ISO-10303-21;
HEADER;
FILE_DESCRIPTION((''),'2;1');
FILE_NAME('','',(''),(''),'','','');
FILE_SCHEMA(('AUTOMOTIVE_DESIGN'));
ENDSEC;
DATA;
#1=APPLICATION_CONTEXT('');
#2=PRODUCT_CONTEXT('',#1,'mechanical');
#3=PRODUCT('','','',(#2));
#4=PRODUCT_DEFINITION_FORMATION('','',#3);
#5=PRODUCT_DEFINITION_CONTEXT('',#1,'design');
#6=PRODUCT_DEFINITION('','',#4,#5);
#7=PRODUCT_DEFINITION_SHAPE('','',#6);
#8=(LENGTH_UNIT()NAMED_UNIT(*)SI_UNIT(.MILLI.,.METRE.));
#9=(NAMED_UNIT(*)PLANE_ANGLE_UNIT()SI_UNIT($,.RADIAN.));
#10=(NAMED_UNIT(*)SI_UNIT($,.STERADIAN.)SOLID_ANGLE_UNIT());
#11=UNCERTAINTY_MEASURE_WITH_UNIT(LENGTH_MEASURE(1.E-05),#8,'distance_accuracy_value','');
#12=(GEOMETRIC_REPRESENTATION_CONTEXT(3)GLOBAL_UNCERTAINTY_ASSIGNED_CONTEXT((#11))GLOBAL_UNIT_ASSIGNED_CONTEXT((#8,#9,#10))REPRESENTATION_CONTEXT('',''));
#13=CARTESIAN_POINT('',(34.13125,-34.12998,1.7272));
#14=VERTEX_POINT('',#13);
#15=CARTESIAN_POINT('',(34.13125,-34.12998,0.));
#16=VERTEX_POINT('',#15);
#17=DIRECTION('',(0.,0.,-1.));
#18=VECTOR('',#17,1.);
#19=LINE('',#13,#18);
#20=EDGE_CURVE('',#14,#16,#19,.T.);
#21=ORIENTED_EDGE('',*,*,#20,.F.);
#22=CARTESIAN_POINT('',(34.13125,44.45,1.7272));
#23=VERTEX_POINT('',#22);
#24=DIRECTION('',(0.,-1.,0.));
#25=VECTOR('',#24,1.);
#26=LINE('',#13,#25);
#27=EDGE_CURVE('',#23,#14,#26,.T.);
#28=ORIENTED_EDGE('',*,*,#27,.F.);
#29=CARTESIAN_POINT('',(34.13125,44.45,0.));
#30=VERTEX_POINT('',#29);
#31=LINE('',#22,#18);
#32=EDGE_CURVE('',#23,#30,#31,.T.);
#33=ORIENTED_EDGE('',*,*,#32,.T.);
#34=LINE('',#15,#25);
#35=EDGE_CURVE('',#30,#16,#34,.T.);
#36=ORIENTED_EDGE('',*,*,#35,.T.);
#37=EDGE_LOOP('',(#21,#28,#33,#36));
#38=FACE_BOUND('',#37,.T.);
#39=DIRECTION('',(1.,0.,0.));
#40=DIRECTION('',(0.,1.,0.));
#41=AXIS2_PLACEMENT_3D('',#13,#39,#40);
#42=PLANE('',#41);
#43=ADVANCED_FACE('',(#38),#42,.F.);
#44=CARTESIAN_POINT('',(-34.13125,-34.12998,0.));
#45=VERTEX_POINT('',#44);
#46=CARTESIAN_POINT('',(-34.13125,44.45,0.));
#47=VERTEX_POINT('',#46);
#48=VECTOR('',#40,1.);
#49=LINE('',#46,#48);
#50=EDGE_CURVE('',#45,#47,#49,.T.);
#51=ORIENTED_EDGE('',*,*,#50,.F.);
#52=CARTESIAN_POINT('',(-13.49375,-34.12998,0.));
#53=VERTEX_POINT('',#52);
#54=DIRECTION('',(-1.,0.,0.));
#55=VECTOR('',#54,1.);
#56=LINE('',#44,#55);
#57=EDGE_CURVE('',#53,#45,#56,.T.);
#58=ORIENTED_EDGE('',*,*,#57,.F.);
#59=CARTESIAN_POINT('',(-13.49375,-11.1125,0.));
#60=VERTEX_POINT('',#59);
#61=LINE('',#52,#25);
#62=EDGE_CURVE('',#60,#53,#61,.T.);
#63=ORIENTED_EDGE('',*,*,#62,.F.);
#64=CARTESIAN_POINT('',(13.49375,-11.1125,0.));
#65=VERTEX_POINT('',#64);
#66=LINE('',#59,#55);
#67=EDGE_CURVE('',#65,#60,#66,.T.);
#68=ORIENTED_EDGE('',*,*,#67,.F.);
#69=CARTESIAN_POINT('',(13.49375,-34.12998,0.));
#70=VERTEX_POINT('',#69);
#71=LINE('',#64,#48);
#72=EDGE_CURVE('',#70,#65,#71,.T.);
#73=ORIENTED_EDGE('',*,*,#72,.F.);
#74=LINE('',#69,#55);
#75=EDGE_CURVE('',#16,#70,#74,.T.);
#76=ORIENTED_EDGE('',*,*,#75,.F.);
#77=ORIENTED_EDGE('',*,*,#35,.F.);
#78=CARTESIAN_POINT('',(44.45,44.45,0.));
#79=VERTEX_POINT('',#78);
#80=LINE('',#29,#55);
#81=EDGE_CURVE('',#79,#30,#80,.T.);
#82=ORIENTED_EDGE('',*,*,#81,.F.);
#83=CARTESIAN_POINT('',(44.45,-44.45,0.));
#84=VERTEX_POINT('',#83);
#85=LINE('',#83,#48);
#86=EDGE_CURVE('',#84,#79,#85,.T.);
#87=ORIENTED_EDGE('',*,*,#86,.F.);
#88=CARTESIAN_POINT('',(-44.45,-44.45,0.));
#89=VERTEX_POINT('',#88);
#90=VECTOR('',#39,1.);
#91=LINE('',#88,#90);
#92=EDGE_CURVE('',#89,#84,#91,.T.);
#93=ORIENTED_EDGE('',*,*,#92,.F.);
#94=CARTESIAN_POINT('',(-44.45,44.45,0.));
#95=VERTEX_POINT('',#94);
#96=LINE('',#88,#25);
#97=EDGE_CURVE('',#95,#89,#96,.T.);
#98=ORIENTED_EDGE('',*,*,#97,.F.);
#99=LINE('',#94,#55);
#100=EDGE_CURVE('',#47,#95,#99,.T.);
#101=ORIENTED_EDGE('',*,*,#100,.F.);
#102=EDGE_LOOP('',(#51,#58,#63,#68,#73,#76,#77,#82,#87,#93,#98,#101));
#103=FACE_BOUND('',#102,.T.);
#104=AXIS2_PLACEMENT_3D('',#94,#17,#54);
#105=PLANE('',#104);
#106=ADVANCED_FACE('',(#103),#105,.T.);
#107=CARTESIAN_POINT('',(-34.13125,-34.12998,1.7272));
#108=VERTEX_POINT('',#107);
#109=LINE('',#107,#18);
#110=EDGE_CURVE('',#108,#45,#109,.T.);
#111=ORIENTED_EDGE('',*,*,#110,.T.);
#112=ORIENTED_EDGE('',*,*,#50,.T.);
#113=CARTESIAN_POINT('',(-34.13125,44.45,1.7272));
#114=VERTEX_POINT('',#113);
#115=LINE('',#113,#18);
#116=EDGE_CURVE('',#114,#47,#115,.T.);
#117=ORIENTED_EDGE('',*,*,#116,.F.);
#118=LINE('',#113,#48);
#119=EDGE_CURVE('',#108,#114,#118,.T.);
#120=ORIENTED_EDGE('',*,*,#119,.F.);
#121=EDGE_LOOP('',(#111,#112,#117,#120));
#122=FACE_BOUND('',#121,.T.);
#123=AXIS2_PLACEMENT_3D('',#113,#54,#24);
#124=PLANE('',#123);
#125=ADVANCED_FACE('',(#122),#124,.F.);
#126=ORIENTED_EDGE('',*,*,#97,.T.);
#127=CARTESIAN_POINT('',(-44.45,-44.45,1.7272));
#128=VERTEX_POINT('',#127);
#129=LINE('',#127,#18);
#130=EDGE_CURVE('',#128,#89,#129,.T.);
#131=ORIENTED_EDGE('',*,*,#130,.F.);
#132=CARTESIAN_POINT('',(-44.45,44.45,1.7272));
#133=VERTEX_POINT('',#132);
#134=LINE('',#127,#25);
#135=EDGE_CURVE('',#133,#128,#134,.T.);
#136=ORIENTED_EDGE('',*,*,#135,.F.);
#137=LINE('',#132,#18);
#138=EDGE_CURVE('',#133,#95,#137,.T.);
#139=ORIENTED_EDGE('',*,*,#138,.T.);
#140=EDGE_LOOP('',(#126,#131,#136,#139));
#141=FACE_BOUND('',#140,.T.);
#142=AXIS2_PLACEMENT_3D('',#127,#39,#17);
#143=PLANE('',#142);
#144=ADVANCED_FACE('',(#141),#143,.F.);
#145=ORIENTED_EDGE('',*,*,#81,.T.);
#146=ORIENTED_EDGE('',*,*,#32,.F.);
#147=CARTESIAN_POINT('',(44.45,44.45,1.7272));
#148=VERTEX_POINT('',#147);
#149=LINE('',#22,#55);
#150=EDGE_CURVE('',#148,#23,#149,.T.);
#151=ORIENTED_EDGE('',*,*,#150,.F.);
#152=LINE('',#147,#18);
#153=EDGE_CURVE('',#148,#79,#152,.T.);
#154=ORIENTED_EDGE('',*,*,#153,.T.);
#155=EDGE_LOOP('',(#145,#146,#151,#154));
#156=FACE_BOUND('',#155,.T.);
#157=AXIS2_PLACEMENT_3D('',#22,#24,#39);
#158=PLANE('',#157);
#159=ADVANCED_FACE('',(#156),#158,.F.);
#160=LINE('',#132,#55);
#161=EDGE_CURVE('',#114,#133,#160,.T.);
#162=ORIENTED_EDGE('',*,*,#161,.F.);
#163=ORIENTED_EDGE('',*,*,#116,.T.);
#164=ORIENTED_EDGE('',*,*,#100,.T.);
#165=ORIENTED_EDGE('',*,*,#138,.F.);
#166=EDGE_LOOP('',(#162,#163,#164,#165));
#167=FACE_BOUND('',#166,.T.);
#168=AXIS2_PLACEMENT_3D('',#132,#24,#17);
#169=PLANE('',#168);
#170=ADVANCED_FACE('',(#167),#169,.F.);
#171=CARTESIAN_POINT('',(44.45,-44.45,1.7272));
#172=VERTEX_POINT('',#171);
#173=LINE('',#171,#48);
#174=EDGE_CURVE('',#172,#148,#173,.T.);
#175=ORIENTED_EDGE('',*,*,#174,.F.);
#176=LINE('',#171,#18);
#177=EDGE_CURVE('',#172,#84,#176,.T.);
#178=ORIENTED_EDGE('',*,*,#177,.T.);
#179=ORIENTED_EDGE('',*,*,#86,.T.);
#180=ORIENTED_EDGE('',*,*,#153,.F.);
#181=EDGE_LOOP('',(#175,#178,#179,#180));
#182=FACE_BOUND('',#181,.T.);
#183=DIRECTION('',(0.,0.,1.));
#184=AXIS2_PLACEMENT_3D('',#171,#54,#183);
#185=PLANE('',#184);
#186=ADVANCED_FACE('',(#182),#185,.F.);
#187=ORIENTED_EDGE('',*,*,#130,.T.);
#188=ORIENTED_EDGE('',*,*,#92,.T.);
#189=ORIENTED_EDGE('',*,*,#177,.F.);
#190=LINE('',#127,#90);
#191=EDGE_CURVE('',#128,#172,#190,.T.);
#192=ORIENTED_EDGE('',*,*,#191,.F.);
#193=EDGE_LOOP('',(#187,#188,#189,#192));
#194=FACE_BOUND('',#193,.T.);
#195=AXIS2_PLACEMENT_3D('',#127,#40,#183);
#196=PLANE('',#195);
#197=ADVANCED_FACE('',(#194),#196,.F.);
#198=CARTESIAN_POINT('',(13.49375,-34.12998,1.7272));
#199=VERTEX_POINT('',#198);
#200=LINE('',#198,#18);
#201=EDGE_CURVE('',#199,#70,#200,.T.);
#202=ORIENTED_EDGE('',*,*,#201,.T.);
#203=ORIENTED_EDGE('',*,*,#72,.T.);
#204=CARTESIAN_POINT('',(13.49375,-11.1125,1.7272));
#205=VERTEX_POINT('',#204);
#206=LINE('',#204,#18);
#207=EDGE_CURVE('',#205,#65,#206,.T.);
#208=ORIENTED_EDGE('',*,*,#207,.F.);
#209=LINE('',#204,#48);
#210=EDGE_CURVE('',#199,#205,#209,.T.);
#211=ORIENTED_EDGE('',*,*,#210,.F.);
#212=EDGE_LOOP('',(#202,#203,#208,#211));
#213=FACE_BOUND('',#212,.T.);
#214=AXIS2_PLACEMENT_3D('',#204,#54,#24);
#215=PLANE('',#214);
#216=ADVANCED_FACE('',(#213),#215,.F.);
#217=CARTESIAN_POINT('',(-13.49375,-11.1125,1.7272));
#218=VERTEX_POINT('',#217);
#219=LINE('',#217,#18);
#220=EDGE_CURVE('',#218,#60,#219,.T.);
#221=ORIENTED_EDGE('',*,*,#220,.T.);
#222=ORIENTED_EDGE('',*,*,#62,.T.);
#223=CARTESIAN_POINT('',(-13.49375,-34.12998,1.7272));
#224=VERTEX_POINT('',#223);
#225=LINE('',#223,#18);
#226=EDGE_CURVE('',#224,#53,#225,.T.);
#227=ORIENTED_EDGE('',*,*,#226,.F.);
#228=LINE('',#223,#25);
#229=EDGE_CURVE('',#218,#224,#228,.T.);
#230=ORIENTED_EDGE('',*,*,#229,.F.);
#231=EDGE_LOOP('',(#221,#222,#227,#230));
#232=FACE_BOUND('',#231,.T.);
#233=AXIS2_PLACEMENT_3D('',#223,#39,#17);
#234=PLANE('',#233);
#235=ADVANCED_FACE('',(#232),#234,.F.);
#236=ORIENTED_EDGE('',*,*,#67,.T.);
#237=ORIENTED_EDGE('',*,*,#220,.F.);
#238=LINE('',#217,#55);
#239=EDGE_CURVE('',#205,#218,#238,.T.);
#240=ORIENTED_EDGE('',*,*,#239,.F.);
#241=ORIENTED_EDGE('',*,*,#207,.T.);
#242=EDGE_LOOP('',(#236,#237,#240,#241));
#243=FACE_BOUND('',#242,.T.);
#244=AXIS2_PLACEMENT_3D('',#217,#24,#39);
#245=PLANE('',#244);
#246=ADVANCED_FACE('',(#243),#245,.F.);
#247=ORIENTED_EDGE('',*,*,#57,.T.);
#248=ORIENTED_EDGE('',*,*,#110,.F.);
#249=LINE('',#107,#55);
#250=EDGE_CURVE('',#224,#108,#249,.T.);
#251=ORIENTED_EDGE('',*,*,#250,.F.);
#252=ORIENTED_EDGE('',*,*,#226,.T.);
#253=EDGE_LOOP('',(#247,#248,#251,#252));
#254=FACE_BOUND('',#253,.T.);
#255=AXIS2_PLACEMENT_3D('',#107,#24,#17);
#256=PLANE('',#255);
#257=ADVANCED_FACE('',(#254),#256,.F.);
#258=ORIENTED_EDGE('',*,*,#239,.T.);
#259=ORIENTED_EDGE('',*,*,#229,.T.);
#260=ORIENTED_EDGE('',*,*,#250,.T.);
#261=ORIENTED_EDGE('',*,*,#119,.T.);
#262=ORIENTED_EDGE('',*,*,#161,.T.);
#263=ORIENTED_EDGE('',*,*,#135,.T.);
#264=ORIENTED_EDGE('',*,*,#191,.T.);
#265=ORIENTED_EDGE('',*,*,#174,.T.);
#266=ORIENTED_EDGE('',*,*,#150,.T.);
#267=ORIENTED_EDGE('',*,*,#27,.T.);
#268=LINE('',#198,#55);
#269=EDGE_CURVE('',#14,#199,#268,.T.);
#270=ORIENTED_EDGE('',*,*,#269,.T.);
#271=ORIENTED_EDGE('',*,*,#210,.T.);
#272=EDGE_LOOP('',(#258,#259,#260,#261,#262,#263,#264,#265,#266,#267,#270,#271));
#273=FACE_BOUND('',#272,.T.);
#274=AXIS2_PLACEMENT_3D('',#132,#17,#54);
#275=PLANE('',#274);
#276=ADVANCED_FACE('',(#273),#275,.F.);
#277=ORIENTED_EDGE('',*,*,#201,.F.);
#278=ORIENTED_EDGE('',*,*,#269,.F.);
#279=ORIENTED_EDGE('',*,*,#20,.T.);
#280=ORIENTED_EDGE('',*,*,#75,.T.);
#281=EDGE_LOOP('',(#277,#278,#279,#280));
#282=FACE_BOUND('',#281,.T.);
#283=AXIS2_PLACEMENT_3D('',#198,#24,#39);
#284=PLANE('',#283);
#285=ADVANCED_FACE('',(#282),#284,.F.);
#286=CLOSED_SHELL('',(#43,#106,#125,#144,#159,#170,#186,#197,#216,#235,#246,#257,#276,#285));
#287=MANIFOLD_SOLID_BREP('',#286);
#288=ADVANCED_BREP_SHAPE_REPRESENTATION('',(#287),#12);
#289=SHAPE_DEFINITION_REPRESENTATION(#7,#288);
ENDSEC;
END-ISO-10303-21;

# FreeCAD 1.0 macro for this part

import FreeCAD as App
import Part
import Sketcher
from FreeCAD import Vector
Q = App.Units.Quantity

doc = App.newDocument("Part")
params = doc.addObject("Spreadsheet::Sheet", "Params")
for row, (alias, value) in enumerate([
    ("sketch1_width", "3.5 in"),
    ("sketch1_width2", "0.40625 in"),
    ("sketch1_width3", "0.8125 in"),
    ("pad1_length", "0.068 in"),
], start=1):
    params.set(f"A{row}", alias)
    params.set(f"B{row}", "=" + value)
    params.setAlias(f"B{row}", alias)

body = doc.addObject("PartDesign::Body", "Body")

# Sketch on XY plane
sketch1 = body.newObject("Sketcher::SketchObject", "Sketch")
sketch1.AttachmentSupport = (doc.getObject("XY_Plane"), [""])
sketch1.MapMode = "FlatFace"
sketch1.addGeometry([
    Part.LineSegment(Vector(-44, -44, 0), Vector(44, -44, 0)),  # 0
    Part.LineSegment(Vector(44, -44, 0), Vector(44, 44, 0)),  # 1
    Part.LineSegment(Vector(44, 44, 0), Vector(34, 44, 0)),  # 2
    Part.LineSegment(Vector(34, 44, 0), Vector(34, -34, 0)),  # 3
    Part.LineSegment(Vector(34, -34, 0), Vector(13, -34, 0)),  # 4
    Part.LineSegment(Vector(13, -34, 0), Vector(13, -11, 0)),  # 5
    Part.LineSegment(Vector(13, -11, 0), Vector(-13, -11, 0)),  # 6
    Part.LineSegment(Vector(-13, -11, 0), Vector(-13, -34, 0)),  # 7
    Part.LineSegment(Vector(-13, -34, 0), Vector(-34, -34, 0)),  # 8
    Part.LineSegment(Vector(-34, -34, 0), Vector(-34, 44, 0)),  # 9
    Part.LineSegment(Vector(-34, 44, 0), Vector(-44, 44, 0)),  # 10
    Part.LineSegment(Vector(-44, 44, 0), Vector(-44, -44, 0)),  # 11
], False)
sketch1.addConstraint([
    Sketcher.Constraint("Coincident", 0, 2, 1, 1),
    Sketcher.Constraint("Coincident", 1, 2, 2, 1),
    Sketcher.Constraint("Coincident", 2, 2, 3, 1),
    Sketcher.Constraint("Coincident", 3, 2, 4, 1),
    Sketcher.Constraint("Coincident", 4, 2, 5, 1),
    Sketcher.Constraint("Coincident", 5, 2, 6, 1),
    Sketcher.Constraint("Coincident", 6, 2, 7, 1),
    Sketcher.Constraint("Coincident", 7, 2, 8, 1),
    Sketcher.Constraint("Coincident", 8, 2, 9, 1),
    Sketcher.Constraint("Coincident", 9, 2, 10, 1),
    Sketcher.Constraint("Coincident", 10, 2, 11, 1),
    Sketcher.Constraint("Coincident", 11, 2, 0, 1),
    Sketcher.Constraint("Horizontal", 0),
    Sketcher.Constraint("Vertical", 1),
    Sketcher.Constraint("Horizontal", 2),
    Sketcher.Constraint("Vertical", 3),
    Sketcher.Constraint("Horizontal", 4),
    Sketcher.Constraint("Vertical", 5),
    Sketcher.Constraint("Horizontal", 6),
    Sketcher.Constraint("Vertical", 7),
    Sketcher.Constraint("Horizontal", 8),
    Sketcher.Constraint("Vertical", 9),
    Sketcher.Constraint("Horizontal", 10),
    Sketcher.Constraint("Vertical", 11),
    Sketcher.Constraint("Symmetric", 0, 2, 10, 2, -1, 1),
    Sketcher.Constraint("Symmetric", 4, 2, 7, 2, -2),
    Sketcher.Constraint("Symmetric", 2, 2, 9, 2, -2),
    Sketcher.Constraint("Equal", 0, 1),
    Sketcher.Constraint("DistanceX", 0, 1, 0, 2, Q("3.5 in")),
    Sketcher.Constraint("DistanceX", 2, 2, 2, 1, Q("0.40625 in")),
    Sketcher.Constraint("DistanceX", 4, 2, 4, 1, Q("0.8125 in")),
    Sketcher.Constraint("DistanceY", 3, 2, 3, 1, Q("3.0937 in")),
    Sketcher.Constraint("DistanceY", 5, 1, 5, 2, Q("0.9062 in")),
])
sketch1.setExpression("Constraints[28]", "Params.sketch1_width")
sketch1.setExpression("Constraints[29]", "Params.sketch1_width2")
sketch1.setExpression("Constraints[30]", "Params.sketch1_width3")
pad1 = body.newObject("PartDesign::Pad", "Pad")
pad1.Profile = sketch1
pad1.setExpression("Length", "Params.pad1_length")

doc.recompute()
